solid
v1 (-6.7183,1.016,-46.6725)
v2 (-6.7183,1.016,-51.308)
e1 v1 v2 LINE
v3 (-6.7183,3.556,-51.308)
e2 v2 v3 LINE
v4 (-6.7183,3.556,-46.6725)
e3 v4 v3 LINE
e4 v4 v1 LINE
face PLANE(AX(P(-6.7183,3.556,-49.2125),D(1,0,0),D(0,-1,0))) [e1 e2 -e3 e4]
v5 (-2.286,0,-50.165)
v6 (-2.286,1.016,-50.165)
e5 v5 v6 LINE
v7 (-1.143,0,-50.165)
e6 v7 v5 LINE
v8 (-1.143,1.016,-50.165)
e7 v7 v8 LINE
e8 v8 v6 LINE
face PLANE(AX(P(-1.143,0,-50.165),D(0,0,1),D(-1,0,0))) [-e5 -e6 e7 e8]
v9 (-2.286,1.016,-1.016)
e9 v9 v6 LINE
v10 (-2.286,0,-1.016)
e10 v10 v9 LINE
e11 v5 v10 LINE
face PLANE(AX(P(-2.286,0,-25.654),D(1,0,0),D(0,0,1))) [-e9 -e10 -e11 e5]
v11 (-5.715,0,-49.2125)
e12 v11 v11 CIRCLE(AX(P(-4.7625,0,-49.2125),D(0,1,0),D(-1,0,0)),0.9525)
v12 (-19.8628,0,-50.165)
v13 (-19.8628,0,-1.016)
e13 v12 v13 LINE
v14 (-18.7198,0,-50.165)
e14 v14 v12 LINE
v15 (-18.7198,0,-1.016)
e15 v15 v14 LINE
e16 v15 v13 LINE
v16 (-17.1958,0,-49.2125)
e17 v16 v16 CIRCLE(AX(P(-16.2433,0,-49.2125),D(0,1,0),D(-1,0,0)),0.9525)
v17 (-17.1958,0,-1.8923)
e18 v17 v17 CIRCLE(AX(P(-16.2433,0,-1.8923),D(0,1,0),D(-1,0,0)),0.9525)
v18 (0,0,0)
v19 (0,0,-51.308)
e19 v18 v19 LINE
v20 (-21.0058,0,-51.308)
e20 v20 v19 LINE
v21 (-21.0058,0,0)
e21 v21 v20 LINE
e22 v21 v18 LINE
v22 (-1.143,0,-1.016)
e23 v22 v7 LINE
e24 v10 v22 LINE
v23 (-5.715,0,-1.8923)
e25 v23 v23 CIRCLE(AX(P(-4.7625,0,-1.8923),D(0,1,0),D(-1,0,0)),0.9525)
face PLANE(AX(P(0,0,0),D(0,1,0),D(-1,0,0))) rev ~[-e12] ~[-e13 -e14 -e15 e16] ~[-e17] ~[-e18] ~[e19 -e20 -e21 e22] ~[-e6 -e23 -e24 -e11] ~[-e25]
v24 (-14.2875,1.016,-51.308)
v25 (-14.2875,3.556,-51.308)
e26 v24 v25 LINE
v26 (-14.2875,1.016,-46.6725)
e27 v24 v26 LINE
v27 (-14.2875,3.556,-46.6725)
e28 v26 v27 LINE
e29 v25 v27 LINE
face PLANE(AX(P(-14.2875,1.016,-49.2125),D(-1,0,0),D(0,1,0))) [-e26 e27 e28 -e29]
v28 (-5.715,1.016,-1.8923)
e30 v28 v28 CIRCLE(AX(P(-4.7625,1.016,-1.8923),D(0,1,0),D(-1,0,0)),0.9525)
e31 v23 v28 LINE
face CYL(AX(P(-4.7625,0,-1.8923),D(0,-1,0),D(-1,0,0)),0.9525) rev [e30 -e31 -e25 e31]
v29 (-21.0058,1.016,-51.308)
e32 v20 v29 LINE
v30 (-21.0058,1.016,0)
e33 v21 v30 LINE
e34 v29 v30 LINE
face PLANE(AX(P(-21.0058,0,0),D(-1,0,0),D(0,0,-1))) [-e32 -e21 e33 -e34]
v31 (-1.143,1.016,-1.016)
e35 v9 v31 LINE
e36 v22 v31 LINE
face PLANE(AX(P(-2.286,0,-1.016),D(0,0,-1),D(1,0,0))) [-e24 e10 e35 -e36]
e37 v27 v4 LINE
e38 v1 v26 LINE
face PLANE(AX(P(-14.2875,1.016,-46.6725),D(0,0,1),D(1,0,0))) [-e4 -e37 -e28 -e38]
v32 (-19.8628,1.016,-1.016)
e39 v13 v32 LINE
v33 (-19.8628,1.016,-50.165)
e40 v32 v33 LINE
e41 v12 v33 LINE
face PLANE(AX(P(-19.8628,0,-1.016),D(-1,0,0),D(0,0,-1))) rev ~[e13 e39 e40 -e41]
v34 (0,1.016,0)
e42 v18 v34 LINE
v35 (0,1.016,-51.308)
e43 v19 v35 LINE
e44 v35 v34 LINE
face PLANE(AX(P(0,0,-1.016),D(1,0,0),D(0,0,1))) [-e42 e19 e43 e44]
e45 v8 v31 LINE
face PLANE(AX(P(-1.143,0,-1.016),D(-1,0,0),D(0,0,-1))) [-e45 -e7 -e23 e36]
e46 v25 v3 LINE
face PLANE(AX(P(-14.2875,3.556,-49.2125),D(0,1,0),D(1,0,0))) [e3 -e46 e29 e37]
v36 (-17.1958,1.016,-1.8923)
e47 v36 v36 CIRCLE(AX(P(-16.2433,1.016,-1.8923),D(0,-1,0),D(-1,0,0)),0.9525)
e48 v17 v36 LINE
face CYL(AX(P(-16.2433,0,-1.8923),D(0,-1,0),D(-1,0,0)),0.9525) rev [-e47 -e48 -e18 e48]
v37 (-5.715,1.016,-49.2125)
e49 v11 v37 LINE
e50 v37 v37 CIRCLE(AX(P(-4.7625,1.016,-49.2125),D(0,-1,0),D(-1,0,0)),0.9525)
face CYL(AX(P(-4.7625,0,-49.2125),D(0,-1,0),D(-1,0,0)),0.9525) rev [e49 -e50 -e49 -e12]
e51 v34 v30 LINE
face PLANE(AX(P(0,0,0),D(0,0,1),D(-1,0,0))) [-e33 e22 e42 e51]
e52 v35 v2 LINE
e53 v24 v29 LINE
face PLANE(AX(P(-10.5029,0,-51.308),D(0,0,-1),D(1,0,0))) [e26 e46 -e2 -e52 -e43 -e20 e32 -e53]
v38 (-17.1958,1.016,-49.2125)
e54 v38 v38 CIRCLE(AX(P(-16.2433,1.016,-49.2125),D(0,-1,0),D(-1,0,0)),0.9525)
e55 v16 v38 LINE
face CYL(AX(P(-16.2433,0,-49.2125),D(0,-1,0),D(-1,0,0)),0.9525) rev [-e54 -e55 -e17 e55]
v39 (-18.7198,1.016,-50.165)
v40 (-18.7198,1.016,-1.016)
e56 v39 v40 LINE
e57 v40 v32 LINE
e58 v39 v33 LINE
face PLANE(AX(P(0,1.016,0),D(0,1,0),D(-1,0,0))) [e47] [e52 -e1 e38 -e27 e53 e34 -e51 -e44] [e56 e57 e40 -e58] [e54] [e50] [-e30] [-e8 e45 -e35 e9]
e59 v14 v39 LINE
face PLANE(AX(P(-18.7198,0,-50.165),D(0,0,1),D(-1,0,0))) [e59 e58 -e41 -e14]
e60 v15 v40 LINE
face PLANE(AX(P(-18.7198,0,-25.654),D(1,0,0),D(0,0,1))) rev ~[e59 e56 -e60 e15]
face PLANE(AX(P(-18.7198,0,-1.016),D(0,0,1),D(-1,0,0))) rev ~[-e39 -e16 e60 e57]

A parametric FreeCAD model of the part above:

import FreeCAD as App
import Part
import Sketcher
Q = App.Units.Quantity

doc = App.newDocument("Part")
body = doc.addObject("PartDesign::Body", "Body")

# Sketch on XZ plane
sketch1 = doc.addObject("Sketcher::SketchObject", "Sketch")
body.addObject(sketch1)
sketch1.AttachmentSupport = (doc.XZ_Plane, [""])
sketch1.MapMode = "FlatFace"
sketch1.addGeometry([
    Part.LineSegment(App.Vector(0, 0, 0), App.Vector(0, -51.308, 0)),  # 0
    Part.LineSegment(App.Vector(0, -51.308, 0), App.Vector(-21.0058, -51.308, 0)),  # 1
    Part.LineSegment(App.Vector(-21.0058, -51.308, 0), App.Vector(-21.0058, 0, 0)),  # 2
    Part.LineSegment(App.Vector(-21.0058, 0, 0), App.Vector(0, 0, 0)),  # 3
    Part.LineSegment(App.Vector(-2.286, -1.016, 0), App.Vector(-2.286, -50.165, 0)),  # 4
    Part.LineSegment(App.Vector(-2.286, -50.165, 0), App.Vector(-1.143, -50.165, 0)),  # 5
    Part.LineSegment(App.Vector(-1.143, -50.165, 0), App.Vector(-1.143, -1.016, 0)),  # 6
    Part.LineSegment(App.Vector(-1.143, -1.016, 0), App.Vector(-2.286, -1.016, 0)),  # 7
    Part.Circle(App.Vector(-4.7625, -1.8923, 0), App.Vector(0, 0, 1), 0.9525),  # 8
    Part.LineSegment(App.Vector(-18.7198, -1.016, 0), App.Vector(-19.8628, -1.016, 0)),  # 9
    Part.LineSegment(App.Vector(-19.8628, -1.016, 0), App.Vector(-19.8628, -50.165, 0)),  # 10
    Part.LineSegment(App.Vector(-19.8628, -50.165, 0), App.Vector(-18.7198, -50.165, 0)),  # 11
    Part.LineSegment(App.Vector(-18.7198, -50.165, 0), App.Vector(-18.7198, -1.016, 0)),  # 12
    Part.Circle(App.Vector(-4.7625, -49.2125, 0), App.Vector(0, 0, 1), 0.9525),  # 13
    Part.Circle(App.Vector(-16.2433, -1.8923, 0), App.Vector(0, 0, 1), 0.9525),  # 14
    Part.Circle(App.Vector(-16.2433, -49.2125, 0), App.Vector(0, 0, 1), 0.9525),  # 15
], False)
sketch1.addConstraint([
    Sketcher.Constraint("Coincident", 0, 2, 1, 1),
    Sketcher.Constraint("Coincident", 1, 2, 2, 1),
    Sketcher.Constraint("Coincident", 2, 2, 3, 1),
    Sketcher.Constraint("Coincident", 3, 2, 0, 1),
    Sketcher.Constraint("Coincident", 4, 2, 5, 1),
    Sketcher.Constraint("Coincident", 5, 2, 6, 1),
    Sketcher.Constraint("Coincident", 6, 2, 7, 1),
    Sketcher.Constraint("Coincident", 7, 2, 4, 1),
    Sketcher.Constraint("Coincident", 9, 2, 10, 1),
    Sketcher.Constraint("Coincident", 10, 2, 11, 1),
    Sketcher.Constraint("Coincident", 11, 2, 12, 1),
    Sketcher.Constraint("Coincident", 12, 2, 9, 1),
    Sketcher.Constraint("Vertical", 0),
    Sketcher.Constraint("Horizontal", 1),
    Sketcher.Constraint("Vertical", 2),
    Sketcher.Constraint("Horizontal", 3),
    Sketcher.Constraint("Vertical", 4),
    Sketcher.Constraint("Horizontal", 5),
    Sketcher.Constraint("Vertical", 6),
    Sketcher.Constraint("Horizontal", 7),
    Sketcher.Constraint("Horizontal", 9),
    Sketcher.Constraint("Vertical", 10),
    Sketcher.Constraint("Horizontal", 11),
    Sketcher.Constraint("Vertical", 12),
    Sketcher.Constraint("Coincident", 3, 2, -1, 1),
    Sketcher.Constraint("Equal", 8, 13),
    Sketcher.Constraint("Equal", 13, 14),
    Sketcher.Constraint("Equal", 14, 15),
    Sketcher.Constraint("Horizontal", 8, 3, 14, 3),
    Sketcher.Constraint("Horizontal", 13, 3, 15, 3),
    Sketcher.Constraint("Horizontal", 7, 2, 9, 2),
    Sketcher.Constraint("Horizontal", 5, 2, 10, 2),
    Sketcher.Constraint("Vertical", 8, 3, 13, 3),
    Sketcher.Constraint("Vertical", 14, 3, 15, 3),
    Sketcher.Constraint("Equal", 7, 9),
    Sketcher.Constraint("Diameter", 8, Q("0.075 in")),
    Sketcher.Constraint("DistanceY", 0, 2, 0, 1, Q("2.02 in")),
    Sketcher.Constraint("DistanceX", 1, 2, 1, 1, Q("0.827 in")),
    Sketcher.Constraint("DistanceX", 5, 1, 5, 2, Q("0.045 in")),
    Sketcher.Constraint("DistanceY", 6, 2, -1, 1, Q("0.04 in")),
    Sketcher.Constraint("DistanceX", 5, 2, -1, 1, Q("0.045 in")),
    Sketcher.Constraint("DistanceY", 0, 2, 4, 2, Q("0.045 in")),
    Sketcher.Constraint("DistanceX", 2, 2, 9, 2, Q("0.045 in")),
    Sketcher.Constraint("DistanceX", 8, 3, -1, 1, Q("0.1875 in")),
    Sketcher.Constraint("DistanceY", 13, 3, -1, 1, Q("1.9375 in")),
    Sketcher.Constraint("DistanceY", 13, 3, 8, 3, Q("1.863 in")),
    Sketcher.Constraint("DistanceX", 14, 3, 8, 3, Q("0.452 in")),
])
pad1 = doc.addObject("PartDesign::Pad", "Pad")
body.addObject(pad1)
pad1.Profile = sketch1
pad1.Length = Q("0.04 in")
pad1.Reversed = True

# Sketch on XZ plane
sketch2 = doc.addObject("Sketcher::SketchObject", "Sketch001")
body.addObject(sketch2)
sketch2.AttachmentSupport = (doc.XZ_Plane, [""])
sketch2.MapMode = "FlatFace"
sketch2.AttachmentOffset = App.Placement(App.Vector(0, 0, -0.04 * 25.4), App.Rotation())
sketch2.addGeometry([
    Part.LineSegment(App.Vector(-6.7183, -49.2125, 0), App.Vector(-6.7183, -51.308, 0)),
    Part.LineSegment(App.Vector(-6.7183, -51.308, 0), App.Vector(-14.2875, -51.308, 0)),
    Part.LineSegment(App.Vector(-14.2875, -51.308, 0), App.Vector(-14.2875, -49.2125, 0)),
    Part.LineSegment(App.Vector(-14.2875, -49.2125, 0), App.Vector(-6.7183, -49.2125, 0)),
], False)
sketch2.addConstraint([
    Sketcher.Constraint("Coincident", 0, 2, 1, 1),
    Sketcher.Constraint("Coincident", 1, 2, 2, 1),
    Sketcher.Constraint("Coincident", 2, 2, 3, 1),
    Sketcher.Constraint("Coincident", 3, 2, 0, 1),
    Sketcher.Constraint("Vertical", 0),
    Sketcher.Constraint("Horizontal", 1),
    Sketcher.Constraint("Vertical", 2),
    Sketcher.Constraint("Horizontal", 3),
    Sketcher.Constraint("DistanceX", 1, 2, 1, 1, Q("0.298 in")),
    Sketcher.Constraint("DistanceY", 0, 2, -1, 1, Q("2.02 in")),
    Sketcher.Constraint("DistanceY", 0, 2, 0, 1, Q("0.0825 in")),
    Sketcher.Constraint("DistanceX", 1, 2, -1, 1, Q("0.5625 in")),
])
pad2 = doc.addObject("PartDesign::Pad", "Pad001")
body.addObject(pad2)
pad2.Profile = sketch2
pad2.Length = Q("0.1 in")
pad2.Reversed = True

# Sketch on XY plane
sketch3 = doc.addObject("Sketcher::SketchObject", "Sketch002")
body.addObject(sketch3)
sketch3.AttachmentSupport = (doc.XY_Plane, [""])
sketch3.MapMode = "FlatFace"
sketch3.AttachmentOffset = App.Placement(App.Vector(0, 0, -1.9375 * 25.4), App.Rotation())
sketch3.addGeometry([
    Part.LineSegment(App.Vector(-6.7183, 3.556, 0), App.Vector(-14.2875, 3.556, 0)),
    Part.LineSegment(App.Vector(-14.2875, 3.556, 0), App.Vector(-14.2875, 1.016, 0)),
    Part.LineSegment(App.Vector(-14.2875, 1.016, 0), App.Vector(-6.7183, 1.016, 0)),
    Part.LineSegment(App.Vector(-6.7183, 1.016, 0), App.Vector(-6.7183, 3.556, 0)),
], False)
sketch3.addConstraint([
    Sketcher.Constraint("Coincident", 0, 2, 1, 1),
    Sketcher.Constraint("Coincident", 1, 2, 2, 1),
    Sketcher.Constraint("Coincident", 2, 2, 3, 1),
    Sketcher.Constraint("Coincident", 3, 2, 0, 1),
    Sketcher.Constraint("Horizontal", 0),
    Sketcher.Constraint("Vertical", 1),
    Sketcher.Constraint("Horizontal", 2),
    Sketcher.Constraint("Vertical", 3),
    Sketcher.Constraint("DistanceY", 1, 2, 1, 1, Q("0.1 in")),
    Sketcher.Constraint("DistanceX", 0, 2, 0, 1, Q("0.298 in")),
    Sketcher.Constraint("DistanceY", -1, 1, 0, 2, Q("0.14 in")),
    Sketcher.Constraint("DistanceX", 0, 2, -1, 1, Q("0.5625 in")),
])
pad3 = doc.addObject("PartDesign::Pad", "Pad002")
body.addObject(pad3)
pad3.Profile = sketch3
pad3.Length = Q("0.1 in")

doc.recompute()
